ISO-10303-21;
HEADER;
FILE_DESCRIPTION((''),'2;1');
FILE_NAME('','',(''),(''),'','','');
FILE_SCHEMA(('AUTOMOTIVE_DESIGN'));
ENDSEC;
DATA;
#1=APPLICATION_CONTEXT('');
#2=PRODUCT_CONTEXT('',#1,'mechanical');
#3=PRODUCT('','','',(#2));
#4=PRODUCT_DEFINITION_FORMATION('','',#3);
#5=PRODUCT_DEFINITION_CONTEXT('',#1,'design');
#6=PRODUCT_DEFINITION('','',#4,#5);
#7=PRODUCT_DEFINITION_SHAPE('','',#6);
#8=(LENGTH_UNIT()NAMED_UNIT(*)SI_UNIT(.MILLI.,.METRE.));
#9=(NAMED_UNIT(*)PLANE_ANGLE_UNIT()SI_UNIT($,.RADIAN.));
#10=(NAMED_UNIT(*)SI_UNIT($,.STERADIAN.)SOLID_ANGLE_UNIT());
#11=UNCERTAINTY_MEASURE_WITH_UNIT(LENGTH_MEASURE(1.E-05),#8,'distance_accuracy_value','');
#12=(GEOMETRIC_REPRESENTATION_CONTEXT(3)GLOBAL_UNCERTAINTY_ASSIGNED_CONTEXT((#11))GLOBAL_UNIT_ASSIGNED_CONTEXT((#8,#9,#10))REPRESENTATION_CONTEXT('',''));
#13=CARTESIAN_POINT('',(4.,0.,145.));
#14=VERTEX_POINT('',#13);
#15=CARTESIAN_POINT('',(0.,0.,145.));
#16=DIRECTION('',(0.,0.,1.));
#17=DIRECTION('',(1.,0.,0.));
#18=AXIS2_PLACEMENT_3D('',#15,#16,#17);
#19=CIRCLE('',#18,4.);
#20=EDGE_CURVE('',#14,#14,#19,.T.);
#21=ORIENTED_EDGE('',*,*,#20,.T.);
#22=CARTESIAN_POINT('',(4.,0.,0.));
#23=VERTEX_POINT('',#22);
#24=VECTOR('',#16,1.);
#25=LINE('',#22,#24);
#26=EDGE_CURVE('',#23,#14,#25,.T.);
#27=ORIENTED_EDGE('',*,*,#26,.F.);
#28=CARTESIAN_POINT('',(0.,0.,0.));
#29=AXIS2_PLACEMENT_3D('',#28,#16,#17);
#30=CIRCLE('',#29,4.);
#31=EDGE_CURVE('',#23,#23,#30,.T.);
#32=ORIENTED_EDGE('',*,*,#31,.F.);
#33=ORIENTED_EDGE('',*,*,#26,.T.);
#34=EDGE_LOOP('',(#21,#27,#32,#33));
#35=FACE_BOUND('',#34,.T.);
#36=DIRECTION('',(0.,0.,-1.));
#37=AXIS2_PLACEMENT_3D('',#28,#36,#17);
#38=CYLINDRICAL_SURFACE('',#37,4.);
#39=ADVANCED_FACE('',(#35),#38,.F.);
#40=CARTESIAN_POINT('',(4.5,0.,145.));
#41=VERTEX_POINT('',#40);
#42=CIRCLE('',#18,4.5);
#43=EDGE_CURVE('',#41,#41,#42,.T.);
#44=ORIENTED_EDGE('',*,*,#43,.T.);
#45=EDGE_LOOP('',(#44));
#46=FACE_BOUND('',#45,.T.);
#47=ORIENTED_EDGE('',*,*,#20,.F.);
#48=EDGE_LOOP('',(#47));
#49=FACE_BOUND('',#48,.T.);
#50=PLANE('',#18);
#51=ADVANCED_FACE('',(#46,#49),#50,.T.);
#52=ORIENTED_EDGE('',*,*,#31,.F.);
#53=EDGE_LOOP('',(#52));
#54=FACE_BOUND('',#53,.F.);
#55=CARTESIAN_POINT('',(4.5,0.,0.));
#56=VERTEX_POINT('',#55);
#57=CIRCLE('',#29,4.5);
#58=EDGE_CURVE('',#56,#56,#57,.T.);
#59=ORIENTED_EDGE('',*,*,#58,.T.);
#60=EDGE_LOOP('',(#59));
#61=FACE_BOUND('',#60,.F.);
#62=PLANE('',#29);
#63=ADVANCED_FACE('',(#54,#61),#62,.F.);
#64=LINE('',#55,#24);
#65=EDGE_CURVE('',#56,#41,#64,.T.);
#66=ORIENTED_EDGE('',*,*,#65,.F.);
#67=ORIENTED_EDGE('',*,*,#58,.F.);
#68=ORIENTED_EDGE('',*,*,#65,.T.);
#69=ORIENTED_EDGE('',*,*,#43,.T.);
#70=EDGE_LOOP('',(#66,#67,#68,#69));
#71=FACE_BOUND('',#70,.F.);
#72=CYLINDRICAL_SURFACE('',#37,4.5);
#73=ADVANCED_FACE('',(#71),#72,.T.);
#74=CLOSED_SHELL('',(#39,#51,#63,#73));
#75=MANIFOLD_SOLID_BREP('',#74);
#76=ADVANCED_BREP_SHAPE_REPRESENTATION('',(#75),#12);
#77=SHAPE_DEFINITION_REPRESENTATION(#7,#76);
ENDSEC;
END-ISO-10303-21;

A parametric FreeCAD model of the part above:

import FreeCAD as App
import Part
import Sketcher

doc = App.newDocument("Part")
body = doc.addObject("PartDesign::Body", "Body")

# Sketch on XY plane
sketch1 = body.newObject("Sketcher::SketchObject", "Sketch")
sketch1.AttachmentSupport = (doc.getObject("XY_Plane"), [""])
sketch1.MapMode = "FlatFace"
sketch1.addGeometry(Part.Circle(App.Vector(0, 0, 0), App.Vector(0, 0, 1), 4.5), False)
sketch1.addGeometry(Part.Circle(App.Vector(0, 0, 0), App.Vector(0, 0, 1), 4), False)
sketch1.addConstraint(Sketcher.Constraint("Coincident", 0, 3, -1, 1))
sketch1.addConstraint(Sketcher.Constraint("Coincident", 1, 3, -1, 1))
sketch1.addConstraint(Sketcher.Constraint("Diameter", 0, 9.0))
sketch1.addConstraint(Sketcher.Constraint("Diameter", 1, 8.0))
pad1 = body.newObject("PartDesign::Pad", "Pad")
pad1.Profile = sketch1
pad1.Length = 145

doc.recompute()
